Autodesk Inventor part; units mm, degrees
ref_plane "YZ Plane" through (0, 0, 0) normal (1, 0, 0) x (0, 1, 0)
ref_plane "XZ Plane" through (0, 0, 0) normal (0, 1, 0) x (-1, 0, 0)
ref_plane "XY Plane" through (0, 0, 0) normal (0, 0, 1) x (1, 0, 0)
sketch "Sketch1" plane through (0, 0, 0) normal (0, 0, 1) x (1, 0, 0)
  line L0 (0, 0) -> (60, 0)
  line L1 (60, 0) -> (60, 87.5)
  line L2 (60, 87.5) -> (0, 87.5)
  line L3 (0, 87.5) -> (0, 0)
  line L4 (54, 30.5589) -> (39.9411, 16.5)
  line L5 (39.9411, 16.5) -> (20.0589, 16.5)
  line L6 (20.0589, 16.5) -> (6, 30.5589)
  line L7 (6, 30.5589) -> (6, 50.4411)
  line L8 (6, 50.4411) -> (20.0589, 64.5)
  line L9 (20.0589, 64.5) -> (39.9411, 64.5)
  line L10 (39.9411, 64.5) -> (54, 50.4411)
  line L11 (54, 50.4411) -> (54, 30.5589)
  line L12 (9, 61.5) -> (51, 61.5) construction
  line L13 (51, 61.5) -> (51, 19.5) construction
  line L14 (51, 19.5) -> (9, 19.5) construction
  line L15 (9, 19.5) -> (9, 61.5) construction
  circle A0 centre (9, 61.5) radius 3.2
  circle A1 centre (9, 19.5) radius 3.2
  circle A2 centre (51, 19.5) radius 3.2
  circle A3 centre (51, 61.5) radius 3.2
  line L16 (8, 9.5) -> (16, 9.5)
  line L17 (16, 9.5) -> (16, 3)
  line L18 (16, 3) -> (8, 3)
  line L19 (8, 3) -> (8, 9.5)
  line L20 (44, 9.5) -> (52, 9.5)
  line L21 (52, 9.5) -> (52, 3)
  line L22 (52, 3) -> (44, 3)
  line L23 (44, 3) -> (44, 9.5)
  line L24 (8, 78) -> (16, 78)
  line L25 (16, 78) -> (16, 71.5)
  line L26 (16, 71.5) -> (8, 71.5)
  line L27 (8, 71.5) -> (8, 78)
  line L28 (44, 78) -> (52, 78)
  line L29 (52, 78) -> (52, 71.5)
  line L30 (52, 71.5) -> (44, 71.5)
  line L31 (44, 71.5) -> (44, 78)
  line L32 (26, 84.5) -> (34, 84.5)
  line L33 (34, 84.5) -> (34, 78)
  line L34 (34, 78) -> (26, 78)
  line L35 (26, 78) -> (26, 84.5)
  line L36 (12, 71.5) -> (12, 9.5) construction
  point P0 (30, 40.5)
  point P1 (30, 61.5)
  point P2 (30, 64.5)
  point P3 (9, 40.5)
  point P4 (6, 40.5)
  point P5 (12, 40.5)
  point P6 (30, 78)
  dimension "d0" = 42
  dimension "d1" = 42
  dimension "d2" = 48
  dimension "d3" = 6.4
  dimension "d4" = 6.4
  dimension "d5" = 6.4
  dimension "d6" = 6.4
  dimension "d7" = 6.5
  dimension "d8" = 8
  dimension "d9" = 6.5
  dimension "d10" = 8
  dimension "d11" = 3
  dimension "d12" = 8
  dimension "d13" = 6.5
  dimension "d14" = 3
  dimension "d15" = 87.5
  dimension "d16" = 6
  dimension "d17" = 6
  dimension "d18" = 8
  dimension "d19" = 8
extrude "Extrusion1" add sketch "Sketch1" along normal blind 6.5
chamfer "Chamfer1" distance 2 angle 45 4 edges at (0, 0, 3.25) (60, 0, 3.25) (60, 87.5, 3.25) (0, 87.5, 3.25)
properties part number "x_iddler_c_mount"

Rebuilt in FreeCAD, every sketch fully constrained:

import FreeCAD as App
import Part
import Sketcher

V = App.Vector


def edges_at(feature, points):
    """Names of the edges that pass closest to the given points."""
    edges = feature.Shape.Edges
    near = lambda p: min(range(len(edges)), key=lambda i: edges[i].distToShape(Part.Vertex(*p))[0])
    return sorted({f"Edge{near(p) + 1}" for p in points})

doc = App.newDocument("Part")
body = doc.addObject("PartDesign::Body", "Body")

sketch1 = doc.addObject("Sketcher::SketchObject", "Sketch")
body.addObject(sketch1)
sketch1.AttachmentSupport = (doc.XY_Plane, [""])
sketch1.MapMode = "FlatFace"
sketch1.addGeometry([
    Part.LineSegment(V(0, 87.5, 0), V(0, 0, 0)),
    Part.LineSegment(V(0, 0, 0), V(60, 0, 0)),
    Part.LineSegment(V(60, 0, 0), V(60, 87.5, 0)),
    Part.LineSegment(V(60, 87.5, 0), V(0, 87.5, 0)),
    Part.LineSegment(V(8, 3, 0), V(8, 9.5, 0)),
    Part.LineSegment(V(8, 9.5, 0), V(16, 9.5, 0)),
    Part.LineSegment(V(16, 9.5, 0), V(16, 3, 0)),
    Part.LineSegment(V(16, 3, 0), V(8, 3, 0)),
    Part.Circle(V(9, 19.5, 0), V(0, 0, 1), 3.2),
    Part.LineSegment(V(44, 3, 0), V(44, 9.5, 0)),
    Part.LineSegment(V(44, 9.5, 0), V(52, 9.5, 0)),
    Part.LineSegment(V(52, 9.5, 0), V(52, 3, 0)),
    Part.LineSegment(V(52, 3, 0), V(44, 3, 0)),
    Part.Circle(V(51, 19.5, 0), V(0, 0, 1), 3.2),
    Part.LineSegment(V(54, 50.4, 0), V(54, 30.6, 0)),
    Part.LineSegment(V(54, 30.6, 0), V(39.9, 16.5, 0)),
    Part.LineSegment(V(39.9, 16.5, 0), V(20.1, 16.5, 0)),
    Part.LineSegment(V(20.1, 16.5, 0), V(6, 30.6, 0)),
    Part.LineSegment(V(6, 30.6, 0), V(6, 50.4, 0)),
    Part.LineSegment(V(6, 50.4, 0), V(20.1, 64.5, 0)),
    Part.LineSegment(V(20.1, 64.5, 0), V(39.9, 64.5, 0)),
    Part.LineSegment(V(39.9, 64.5, 0), V(54, 50.4, 0)),
    Part.Circle(V(9, 61.5, 0), V(0, 0, 1), 3.2),
    Part.LineSegment(V(8, 71.5, 0), V(8, 78, 0)),
    Part.LineSegment(V(8, 78, 0), V(16, 78, 0)),
    Part.LineSegment(V(16, 78, 0), V(16, 71.5, 0)),
    Part.LineSegment(V(16, 71.5, 0), V(8, 71.5, 0)),
    Part.Circle(V(51, 61.5, 0), V(0, 0, 1), 3.2),
    Part.LineSegment(V(26, 78, 0), V(26, 84.5, 0)),
    Part.LineSegment(V(26, 84.5, 0), V(34, 84.5, 0)),
    Part.LineSegment(V(34, 84.5, 0), V(34, 78, 0)),
    Part.LineSegment(V(34, 78, 0), V(26, 78, 0)),
    Part.LineSegment(V(44, 71.5, 0), V(44, 78, 0)),
    Part.LineSegment(V(44, 78, 0), V(52, 78, 0)),
    Part.LineSegment(V(52, 78, 0), V(52, 71.5, 0)),
    Part.LineSegment(V(52, 71.5, 0), V(44, 71.5, 0)),
], False)
sketch1.addConstraint([
    Sketcher.Constraint("Coincident", 0, 2, 1, 1),
    Sketcher.Constraint("Coincident", 1, 2, 2, 1),
    Sketcher.Constraint("Coincident", 2, 2, 3, 1),
    Sketcher.Constraint("Coincident", 3, 2, 0, 1),
    Sketcher.Constraint("Coincident", 4, 2, 5, 1),
    Sketcher.Constraint("Coincident", 5, 2, 6, 1),
    Sketcher.Constraint("Coincident", 6, 2, 7, 1),
    Sketcher.Constraint("Coincident", 7, 2, 4, 1),
    Sketcher.Constraint("Coincident", 9, 2, 10, 1),
    Sketcher.Constraint("Coincident", 10, 2, 11, 1),
    Sketcher.Constraint("Coincident", 11, 2, 12, 1),
    Sketcher.Constraint("Coincident", 12, 2, 9, 1),
    Sketcher.Constraint("Coincident", 14, 2, 15, 1),
    Sketcher.Constraint("Coincident", 15, 2, 16, 1),
    Sketcher.Constraint("Coincident", 16, 2, 17, 1),
    Sketcher.Constraint("Coincident", 17, 2, 18, 1),
    Sketcher.Constraint("Coincident", 18, 2, 19, 1),
    Sketcher.Constraint("Coincident", 19, 2, 20, 1),
    Sketcher.Constraint("Coincident", 20, 2, 21, 1),
    Sketcher.Constraint("Coincident", 21, 2, 14, 1),
    Sketcher.Constraint("Coincident", 23, 2, 24, 1),
    Sketcher.Constraint("Coincident", 24, 2, 25, 1),
    Sketcher.Constraint("Coincident", 25, 2, 26, 1),
    Sketcher.Constraint("Coincident", 26, 2, 23, 1),
    Sketcher.Constraint("Coincident", 28, 2, 29, 1),
    Sketcher.Constraint("Coincident", 29, 2, 30, 1),
    Sketcher.Constraint("Coincident", 30, 2, 31, 1),
    Sketcher.Constraint("Coincident", 31, 2, 28, 1),
    Sketcher.Constraint("Coincident", 32, 2, 33, 1),
    Sketcher.Constraint("Coincident", 33, 2, 34, 1),
    Sketcher.Constraint("Coincident", 34, 2, 35, 1),
    Sketcher.Constraint("Coincident", 35, 2, 32, 1),
    Sketcher.Constraint("Vertical", 0),
    Sketcher.Constraint("Horizontal", 1),
    Sketcher.Constraint("Vertical", 2),
    Sketcher.Constraint("Horizontal", 3),
    Sketcher.Constraint("Vertical", 4),
    Sketcher.Constraint("Horizontal", 5),
    Sketcher.Constraint("Vertical", 6),
    Sketcher.Constraint("Horizontal", 7),
    Sketcher.Constraint("Vertical", 9),
    Sketcher.Constraint("Horizontal", 10),
    Sketcher.Constraint("Vertical", 11),
    Sketcher.Constraint("Horizontal", 12),
    Sketcher.Constraint("Vertical", 14),
    Sketcher.Constraint("Horizontal", 16),
    Sketcher.Constraint("Vertical", 18),
    Sketcher.Constraint("Horizontal", 20),
    Sketcher.Constraint("Vertical", 23),
    Sketcher.Constraint("Horizontal", 24),
    Sketcher.Constraint("Vertical", 25),
    Sketcher.Constraint("Horizontal", 26),
    Sketcher.Constraint("Vertical", 28),
    Sketcher.Constraint("Horizontal", 29),
    Sketcher.Constraint("Vertical", 30),
    Sketcher.Constraint("Horizontal", 31),
    Sketcher.Constraint("Vertical", 32),
    Sketcher.Constraint("Horizontal", 33),
    Sketcher.Constraint("Vertical", 34),
    Sketcher.Constraint("Horizontal", 35),
    Sketcher.Constraint("Coincident", 0, 2, -1, 1),
    Sketcher.Constraint("Equal", 8, 13),
    Sketcher.Constraint("Equal", 13, 22),
    Sketcher.Constraint("Equal", 22, 27),
    Sketcher.Constraint("Perpendicular", 15, 17),
    Sketcher.Constraint("Perpendicular", 17, 19),
    Sketcher.Constraint("Perpendicular", 19, 21),
    Sketcher.Constraint("Horizontal", 8, 3, 13, 3),
    Sketcher.Constraint("Horizontal", 22, 3, 27, 3),
    Sketcher.Constraint("Horizontal", 5, 2, 9, 2),
    Sketcher.Constraint("Horizontal", 7, 2, 11, 2),
    Sketcher.Constraint("Horizontal", 14, 2, 17, 2),
    Sketcher.Constraint("Horizontal", 18, 2, 21, 2),
    Sketcher.Constraint("Horizontal", 24, 2, 30, 2),
    Sketcher.Constraint("Horizontal", 31, 2, 32, 2),
    Sketcher.Constraint("Horizontal", 26, 2, 34, 2),
    Sketcher.Constraint("Vertical", 8, 3, 22, 3),
    Sketcher.Constraint("Vertical", 13, 3, 27, 3),
    Sketcher.Constraint("Vertical", 16, 2, 19, 2),
    Sketcher.Constraint("Vertical", 15, 2, 20, 2),
    Sketcher.Constraint("Vertical", 7, 2, 23, 2),
    Sketcher.Constraint("Vertical", 6, 2, 24, 2),
    Sketcher.Constraint("Vertical", 12, 2, 32, 2),
    Sketcher.Constraint("Vertical", 11, 2, 33, 2),
    Sketcher.Constraint("Equal", 7, 10),
    Sketcher.Constraint("Equal", 26, 29),
    Sketcher.Constraint("Equal", 20, 14),
    Sketcher.Constraint("Equal", 11, 23),
    Sketcher.Constraint("Equal", 25, 28),
    Sketcher.Constraint("Diameter", 8, 6.4),
    Sketcher.Constraint("DistanceX", 5, 1, 5, 2, 8.0),
    Sketcher.Constraint("DistanceY", 0, 2, 0, 1, 87.5),
    Sketcher.Constraint("DistanceY", 4, 1, 4, 2, 6.5),
    Sketcher.Constraint("DistanceX", -1, 1, 4, 2, 8.0),
    Sketcher.Constraint("DistanceY", -1, 1, 6, 2, 3.0),
    Sketcher.Constraint("DistanceX", -1, 1, 17, 2, 6.0),
    Sketcher.Constraint("DistanceX", 8, 3, 13, 3, 42.0),
    Sketcher.Constraint("DistanceY", 8, 3, 22, 3, 42.0),
    Sketcher.Constraint("DistanceX", 10, 2, 1, 2, 8.0),
    Sketcher.Constraint("DistanceX", 13, 3, 14, 2, 3.0),
    Sketcher.Constraint("DistanceY", 15, 2, 13, 3, 3.0),
    Sketcher.Constraint("DistanceX", 17, 2, 8, 3, 3.0),
    Sketcher.Constraint("DistanceX", 1, 1, 1, 2, 60.0),
    Sketcher.Constraint("DistanceY", -1, 1, 23, 2, 78.0),
    Sketcher.Constraint("DistanceX", -1, 1, 28, 2, 26.0),
    Sketcher.Constraint("DistanceY", 27, 3, 2, 2, 26.0),
    Sketcher.Constraint("DistanceX", 16, 2, 16, 1, 19.8822),
])
pad1 = doc.addObject("PartDesign::Pad", "Pad")
body.addObject(pad1)
pad1.Profile = sketch1
pad1.Length = 6.5
doc.recompute()

chamfer = doc.addObject("PartDesign::Chamfer", "Chamfer")
body.addObject(chamfer)
chamfer.Base = (pad1, edges_at(pad1, [
    (0, 0, 3.25),
    (60, 0, 3.25),
    (60, 87.5, 3.25),
    (0, 87.5, 3.25),
]))
chamfer.Size = 2

doc.recompute()
